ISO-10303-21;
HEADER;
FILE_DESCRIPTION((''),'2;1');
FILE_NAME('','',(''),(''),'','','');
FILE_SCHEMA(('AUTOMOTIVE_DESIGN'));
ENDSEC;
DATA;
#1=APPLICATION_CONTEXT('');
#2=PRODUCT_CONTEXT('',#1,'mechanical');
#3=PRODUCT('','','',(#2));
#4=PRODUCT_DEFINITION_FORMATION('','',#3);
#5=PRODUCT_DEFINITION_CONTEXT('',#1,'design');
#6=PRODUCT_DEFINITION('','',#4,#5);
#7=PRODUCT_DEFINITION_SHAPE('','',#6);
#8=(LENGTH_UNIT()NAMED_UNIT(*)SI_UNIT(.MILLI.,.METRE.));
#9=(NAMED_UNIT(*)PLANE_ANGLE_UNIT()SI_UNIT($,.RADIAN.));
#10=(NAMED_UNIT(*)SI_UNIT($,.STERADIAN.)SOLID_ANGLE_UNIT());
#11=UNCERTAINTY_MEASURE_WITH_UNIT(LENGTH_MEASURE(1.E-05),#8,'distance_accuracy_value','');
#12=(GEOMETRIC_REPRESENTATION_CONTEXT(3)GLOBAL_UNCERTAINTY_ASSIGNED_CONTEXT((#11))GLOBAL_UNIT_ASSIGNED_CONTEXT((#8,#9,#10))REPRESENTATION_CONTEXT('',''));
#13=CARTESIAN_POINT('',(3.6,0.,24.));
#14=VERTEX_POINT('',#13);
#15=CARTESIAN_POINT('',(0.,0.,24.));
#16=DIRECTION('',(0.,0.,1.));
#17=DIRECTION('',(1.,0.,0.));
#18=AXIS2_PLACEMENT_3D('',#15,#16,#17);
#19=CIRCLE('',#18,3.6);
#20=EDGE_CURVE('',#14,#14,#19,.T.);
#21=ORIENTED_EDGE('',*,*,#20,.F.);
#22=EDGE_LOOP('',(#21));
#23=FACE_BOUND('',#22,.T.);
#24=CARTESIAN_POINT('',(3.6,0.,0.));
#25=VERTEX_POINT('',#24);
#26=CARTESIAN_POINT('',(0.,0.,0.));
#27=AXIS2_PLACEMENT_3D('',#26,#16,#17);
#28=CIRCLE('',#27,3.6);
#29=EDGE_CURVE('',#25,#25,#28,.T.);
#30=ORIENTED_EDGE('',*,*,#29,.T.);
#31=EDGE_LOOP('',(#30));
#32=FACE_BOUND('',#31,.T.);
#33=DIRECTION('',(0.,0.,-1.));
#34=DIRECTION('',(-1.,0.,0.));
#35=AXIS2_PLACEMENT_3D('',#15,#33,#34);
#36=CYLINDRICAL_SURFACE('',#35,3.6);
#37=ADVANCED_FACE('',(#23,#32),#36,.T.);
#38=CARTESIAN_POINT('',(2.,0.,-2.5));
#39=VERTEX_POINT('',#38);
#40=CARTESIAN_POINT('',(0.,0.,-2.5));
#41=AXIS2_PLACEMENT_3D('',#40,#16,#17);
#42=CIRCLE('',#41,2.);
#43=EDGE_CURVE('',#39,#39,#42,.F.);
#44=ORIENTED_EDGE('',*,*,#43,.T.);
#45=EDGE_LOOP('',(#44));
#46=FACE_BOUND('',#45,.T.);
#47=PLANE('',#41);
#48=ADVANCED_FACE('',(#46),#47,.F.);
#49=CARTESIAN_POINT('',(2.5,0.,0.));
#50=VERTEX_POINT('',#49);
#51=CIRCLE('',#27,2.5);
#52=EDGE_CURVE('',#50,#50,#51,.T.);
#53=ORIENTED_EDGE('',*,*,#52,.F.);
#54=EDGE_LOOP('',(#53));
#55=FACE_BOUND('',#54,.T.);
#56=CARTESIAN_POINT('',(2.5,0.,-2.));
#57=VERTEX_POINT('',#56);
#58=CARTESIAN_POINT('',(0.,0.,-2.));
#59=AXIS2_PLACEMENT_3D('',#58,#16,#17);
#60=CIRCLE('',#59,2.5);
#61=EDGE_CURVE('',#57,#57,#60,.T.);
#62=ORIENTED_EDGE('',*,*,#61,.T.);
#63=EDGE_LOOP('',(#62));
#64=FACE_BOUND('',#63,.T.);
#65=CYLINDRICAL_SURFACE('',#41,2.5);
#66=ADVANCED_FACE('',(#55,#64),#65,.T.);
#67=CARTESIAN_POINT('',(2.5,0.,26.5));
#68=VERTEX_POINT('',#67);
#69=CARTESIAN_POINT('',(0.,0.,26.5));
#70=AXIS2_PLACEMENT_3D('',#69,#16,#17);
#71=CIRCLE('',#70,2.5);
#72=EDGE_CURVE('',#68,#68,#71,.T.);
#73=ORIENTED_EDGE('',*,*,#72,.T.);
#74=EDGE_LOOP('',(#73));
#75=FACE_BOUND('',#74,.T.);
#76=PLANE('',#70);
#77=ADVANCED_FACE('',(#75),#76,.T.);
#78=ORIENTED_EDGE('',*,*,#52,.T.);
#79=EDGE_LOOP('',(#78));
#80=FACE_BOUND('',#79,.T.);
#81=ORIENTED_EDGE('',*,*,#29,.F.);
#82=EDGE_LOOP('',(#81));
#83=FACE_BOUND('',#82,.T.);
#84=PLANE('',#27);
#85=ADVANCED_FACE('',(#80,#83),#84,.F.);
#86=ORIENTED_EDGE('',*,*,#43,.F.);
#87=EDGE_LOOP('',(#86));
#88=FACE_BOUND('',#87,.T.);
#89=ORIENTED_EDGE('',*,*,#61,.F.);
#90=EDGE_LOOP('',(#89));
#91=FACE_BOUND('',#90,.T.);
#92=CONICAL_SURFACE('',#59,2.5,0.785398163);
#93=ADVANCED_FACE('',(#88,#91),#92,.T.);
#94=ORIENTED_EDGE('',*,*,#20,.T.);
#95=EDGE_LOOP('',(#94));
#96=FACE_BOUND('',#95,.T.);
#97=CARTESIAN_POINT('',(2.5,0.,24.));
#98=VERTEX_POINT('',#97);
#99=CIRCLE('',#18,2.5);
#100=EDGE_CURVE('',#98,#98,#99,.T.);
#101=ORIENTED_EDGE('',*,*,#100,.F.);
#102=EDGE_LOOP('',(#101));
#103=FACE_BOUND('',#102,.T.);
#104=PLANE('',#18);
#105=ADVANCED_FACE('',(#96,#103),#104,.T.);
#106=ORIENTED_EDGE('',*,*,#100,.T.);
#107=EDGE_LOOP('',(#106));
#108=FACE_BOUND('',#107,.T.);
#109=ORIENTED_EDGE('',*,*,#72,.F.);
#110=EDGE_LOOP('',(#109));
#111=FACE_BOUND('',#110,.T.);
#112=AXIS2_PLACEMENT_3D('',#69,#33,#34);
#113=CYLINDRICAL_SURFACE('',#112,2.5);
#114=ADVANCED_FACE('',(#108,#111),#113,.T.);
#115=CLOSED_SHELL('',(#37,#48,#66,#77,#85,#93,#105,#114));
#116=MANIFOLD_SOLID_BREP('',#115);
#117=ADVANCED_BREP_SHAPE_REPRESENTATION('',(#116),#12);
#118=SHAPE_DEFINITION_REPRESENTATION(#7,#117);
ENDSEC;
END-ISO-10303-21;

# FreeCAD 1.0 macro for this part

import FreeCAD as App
import Part
import Sketcher
Q = App.Units.Quantity


def edges_at(feature, points):
    """Names of the edges that pass closest to the given points."""
    edges = feature.Shape.Edges
    near = lambda p: min(range(len(edges)), key=lambda i: edges[i].distToShape(Part.Vertex(*p))[0])
    return sorted({f"Edge{near(p) + 1}" for p in points})

doc = App.newDocument("Part")
body = doc.addObject("PartDesign::Body", "Body")

sketch1 = body.newObject("Sketcher::SketchObject", "Sketch")
sketch1.AttachmentSupport = (doc.getObject("XY_Plane"), [""])
sketch1.MapMode = "FlatFace"
sketch1.addGeometry(Part.Circle(App.Vector(0, 0, 0), App.Vector(0, 0, 1), 3.6), False)
sketch1.addConstraint([
    Sketcher.Constraint("Coincident", 0, 3, -1, 1),
    Sketcher.Constraint("Diameter", 0, Q("7.2 mm")),
])
pad1 = body.newObject("PartDesign::Pad", "Pad")
pad1.Profile = sketch1
pad1.Length = 24

sketch2 = body.newObject("Sketcher::SketchObject", "Sketch001")
sketch2.AttachmentSupport = (doc.getObject("XY_Plane"), [""])
sketch2.MapMode = "FlatFace"
sketch2.addGeometry(Part.Circle(App.Vector(0, 0, 0), App.Vector(0, 0, 1), 2.5), False)
sketch2.addConstraint([
    Sketcher.Constraint("Coincident", 0, 3, -1, 1),
    Sketcher.Constraint("Diameter", 0, Q("5 mm")),
])
pad2 = body.newObject("PartDesign::Pad", "Pad001")
pad2.Profile = sketch2
pad2.Length = 2.5
pad2.Reversed = True

sketch3 = body.newObject("Sketcher::SketchObject", "Sketch002")
sketch3.AttachmentSupport = (doc.getObject("XY_Plane"), [""])
sketch3.MapMode = "FlatFace"
sketch3.AttachmentOffset = App.Placement(App.Vector(0, 0, 26.5), App.Rotation())
sketch3.addGeometry(Part.Circle(App.Vector(0, 0, 0), App.Vector(0, 0, 1), 2.5), False)
sketch3.addConstraint([
    Sketcher.Constraint("Coincident", 0, 3, -1, 1),
    Sketcher.Constraint("Diameter", 0, Q("5 mm")),
])
pad3 = body.newObject("PartDesign::Pad", "Pad002")
pad3.Profile = sketch3
pad3.Length = 2.5
pad3.Reversed = True
doc.recompute()

chamfer = body.newObject("PartDesign::Chamfer", "Chamfer")
chamfer.Base = (pad3, edges_at(pad3, [(-2.5, 0, -2.5)]))
chamfer.Size = 0.5

doc.recompute()
